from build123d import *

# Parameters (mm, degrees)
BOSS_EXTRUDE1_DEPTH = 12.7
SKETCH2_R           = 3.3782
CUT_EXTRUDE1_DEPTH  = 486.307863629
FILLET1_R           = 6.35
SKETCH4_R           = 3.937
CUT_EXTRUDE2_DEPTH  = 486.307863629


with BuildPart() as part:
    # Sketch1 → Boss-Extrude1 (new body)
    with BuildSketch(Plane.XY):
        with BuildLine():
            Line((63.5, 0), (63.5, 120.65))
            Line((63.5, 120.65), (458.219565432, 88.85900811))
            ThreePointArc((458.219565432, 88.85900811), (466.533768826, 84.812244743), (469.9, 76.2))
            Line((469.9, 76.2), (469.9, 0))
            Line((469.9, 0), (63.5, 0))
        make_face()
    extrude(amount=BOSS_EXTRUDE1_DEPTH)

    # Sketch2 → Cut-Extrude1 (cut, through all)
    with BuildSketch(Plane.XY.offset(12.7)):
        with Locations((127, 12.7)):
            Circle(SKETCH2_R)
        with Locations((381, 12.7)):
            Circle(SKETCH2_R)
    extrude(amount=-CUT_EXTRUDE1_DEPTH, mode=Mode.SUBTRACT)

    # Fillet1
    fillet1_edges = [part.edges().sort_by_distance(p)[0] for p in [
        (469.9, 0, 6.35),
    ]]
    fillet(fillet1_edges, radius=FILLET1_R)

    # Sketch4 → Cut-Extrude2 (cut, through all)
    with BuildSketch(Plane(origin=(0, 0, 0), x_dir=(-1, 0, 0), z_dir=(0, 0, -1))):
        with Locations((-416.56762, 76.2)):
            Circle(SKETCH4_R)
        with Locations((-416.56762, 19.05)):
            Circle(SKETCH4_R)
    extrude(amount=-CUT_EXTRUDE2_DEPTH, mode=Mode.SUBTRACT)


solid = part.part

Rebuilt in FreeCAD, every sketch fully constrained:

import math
import FreeCAD as App
import Part
import Sketcher

V = App.Vector
Q = App.Units.Quantity


def edges_at(feature, points):
    """Names of the edges that pass closest to the given points."""
    edges = feature.Shape.Edges
    near = lambda p: min(range(len(edges)), key=lambda i: edges[i].distToShape(Part.Vertex(*p))[0])
    return sorted({f"Edge{near(p) + 1}" for p in points})

doc = App.newDocument("Part")
body = doc.addObject("PartDesign::Body", "Body")

sketch1 = body.newObject("Sketcher::SketchObject", "Sketch")
sketch1.AttachmentSupport = (doc.getObject("XY_Plane"), [""])
sketch1.MapMode = "FlatFace"
sketch1.addGeometry(Part.LineSegment(V(64, 121, 0), V(64, 0, 0)), False)
sketch1.addGeometry(Part.LineSegment(V(64, 0, 0), V(470, 0, 0)), False)
sketch1.addGeometry(Part.LineSegment(V(470, 0, 0), V(470, 76, 0)), False)
sketch1.addGeometry(Part.ArcOfCircle(Part.Circle(V(457, 76, 0), V(0, 0, 1), 13), math.radians(0), math.radians(85)), False)
sketch1.addGeometry(Part.LineSegment(V(458, 89, 0), V(64, 121, 0)), False)
sketch1.addConstraint(Sketcher.Constraint("Coincident", 0, 2, 1, 1))
sketch1.addConstraint(Sketcher.Constraint("Coincident", 1, 2, 2, 1))
sketch1.addConstraint(Sketcher.Constraint("Tangent", 2, 2, 3, 1))
sketch1.addConstraint(Sketcher.Constraint("Tangent", 3, 2, 4, 1))
sketch1.addConstraint(Sketcher.Constraint("Coincident", 4, 2, 0, 1))
sketch1.addConstraint(Sketcher.Constraint("Vertical", 0))
sketch1.addConstraint(Sketcher.Constraint("Horizontal", 1))
sketch1.addConstraint(Sketcher.Constraint("Vertical", 2))
sketch1.addConstraint(Sketcher.Constraint("PointOnObject", 0, 2, -1))
sketch1.addConstraint(Sketcher.Constraint("Radius", 3, Q("0.5 in")))
sketch1.addConstraint(Sketcher.Constraint("DistanceX", 1, 1, 1, 2, Q("16 in")))
sketch1.addConstraint(Sketcher.Constraint("DistanceY", 2, 1, 2, 2, Q("3 in")))
sketch1.addConstraint(Sketcher.Constraint("DistanceX", -1, 1, 3, 3, Q("18 in")))
sketch1.addConstraint(Sketcher.Constraint("DistanceY", 0, 2, 0, 1, Q("4.75 in")))
pad1 = body.newObject("PartDesign::Pad", "Pad")
pad1.Profile = sketch1
pad1.Length = Q("0.5 in")

sketch2 = body.newObject("Sketcher::SketchObject", "Sketch001")
sketch2.AttachmentSupport = (doc.getObject("XY_Plane"), [""])
sketch2.MapMode = "FlatFace"
sketch2.AttachmentOffset = App.Placement(V(0, 0, 0.5 * 25.4), App.Rotation())
sketch2.addGeometry(Part.Circle(V(127, 12.7, 0), V(0, 0, 1), 3.4), False)
sketch2.addGeometry(Part.Circle(V(381, 12.7, 0), V(0, 0, 1), 3.4), False)
sketch2.addConstraint(Sketcher.Constraint("Equal", 0, 1))
sketch2.addConstraint(Sketcher.Constraint("Horizontal", 0, 3, 1, 3))
sketch2.addConstraint(Sketcher.Constraint("Diameter", 0, Q("0.266 in")))
sketch2.addConstraint(Sketcher.Constraint("DistanceX", -1, 1, 0, 3, Q("5 in")))
sketch2.addConstraint(Sketcher.Constraint("DistanceX", -1, 1, 1, 3, Q("15 in")))
sketch2.addConstraint(Sketcher.Constraint("DistanceY", -1, 1, 0, 3, Q("0.5 in")))
pocket1 = body.newObject("PartDesign::Pocket", "Pocket")
pocket1.Profile = sketch2
pocket1.Type = "ThroughAll"
doc.recompute()

fillet = body.newObject("PartDesign::Fillet", "Fillet")
fillet.Base = (pocket1, edges_at(pocket1, [(469.9, 0, 6.35)]))
fillet.Radius = Q("0.25 in")

sketch3 = body.newObject("Sketcher::SketchObject", "Sketch002")
sketch3.AttachmentSupport = (doc.getObject("XY_Plane"), [""])
sketch3.MapMode = "FlatFace"
sketch3.addGeometry(Part.Circle(V(416.6, 76.2, 0), V(0, 0, 1), 3.9), False)
sketch3.addGeometry(Part.Circle(V(416.6, 19.1, 0), V(0, 0, 1), 3.9), False)
sketch3.addConstraint(Sketcher.Constraint("Equal", 0, 1))
sketch3.addConstraint(Sketcher.Constraint("Vertical", 0, 3, 1, 3))
sketch3.addConstraint(Sketcher.Constraint("Diameter", 0, Q("0.31 in")))
sketch3.addConstraint(Sketcher.Constraint("DistanceY", -1, 1, 0, 3, Q("3 in")))
sketch3.addConstraint(Sketcher.Constraint("DistanceY", -1, 1, 1, 3, Q("0.75 in")))
sketch3.addConstraint(Sketcher.Constraint("DistanceX", -1, 1, 0, 3, Q("16.4003 in")))
pocket2 = body.newObject("PartDesign::Pocket", "Pocket001")
pocket2.Profile = sketch3
pocket2.Type = "ThroughAll"
pocket2.Reversed = True

doc.recompute()
